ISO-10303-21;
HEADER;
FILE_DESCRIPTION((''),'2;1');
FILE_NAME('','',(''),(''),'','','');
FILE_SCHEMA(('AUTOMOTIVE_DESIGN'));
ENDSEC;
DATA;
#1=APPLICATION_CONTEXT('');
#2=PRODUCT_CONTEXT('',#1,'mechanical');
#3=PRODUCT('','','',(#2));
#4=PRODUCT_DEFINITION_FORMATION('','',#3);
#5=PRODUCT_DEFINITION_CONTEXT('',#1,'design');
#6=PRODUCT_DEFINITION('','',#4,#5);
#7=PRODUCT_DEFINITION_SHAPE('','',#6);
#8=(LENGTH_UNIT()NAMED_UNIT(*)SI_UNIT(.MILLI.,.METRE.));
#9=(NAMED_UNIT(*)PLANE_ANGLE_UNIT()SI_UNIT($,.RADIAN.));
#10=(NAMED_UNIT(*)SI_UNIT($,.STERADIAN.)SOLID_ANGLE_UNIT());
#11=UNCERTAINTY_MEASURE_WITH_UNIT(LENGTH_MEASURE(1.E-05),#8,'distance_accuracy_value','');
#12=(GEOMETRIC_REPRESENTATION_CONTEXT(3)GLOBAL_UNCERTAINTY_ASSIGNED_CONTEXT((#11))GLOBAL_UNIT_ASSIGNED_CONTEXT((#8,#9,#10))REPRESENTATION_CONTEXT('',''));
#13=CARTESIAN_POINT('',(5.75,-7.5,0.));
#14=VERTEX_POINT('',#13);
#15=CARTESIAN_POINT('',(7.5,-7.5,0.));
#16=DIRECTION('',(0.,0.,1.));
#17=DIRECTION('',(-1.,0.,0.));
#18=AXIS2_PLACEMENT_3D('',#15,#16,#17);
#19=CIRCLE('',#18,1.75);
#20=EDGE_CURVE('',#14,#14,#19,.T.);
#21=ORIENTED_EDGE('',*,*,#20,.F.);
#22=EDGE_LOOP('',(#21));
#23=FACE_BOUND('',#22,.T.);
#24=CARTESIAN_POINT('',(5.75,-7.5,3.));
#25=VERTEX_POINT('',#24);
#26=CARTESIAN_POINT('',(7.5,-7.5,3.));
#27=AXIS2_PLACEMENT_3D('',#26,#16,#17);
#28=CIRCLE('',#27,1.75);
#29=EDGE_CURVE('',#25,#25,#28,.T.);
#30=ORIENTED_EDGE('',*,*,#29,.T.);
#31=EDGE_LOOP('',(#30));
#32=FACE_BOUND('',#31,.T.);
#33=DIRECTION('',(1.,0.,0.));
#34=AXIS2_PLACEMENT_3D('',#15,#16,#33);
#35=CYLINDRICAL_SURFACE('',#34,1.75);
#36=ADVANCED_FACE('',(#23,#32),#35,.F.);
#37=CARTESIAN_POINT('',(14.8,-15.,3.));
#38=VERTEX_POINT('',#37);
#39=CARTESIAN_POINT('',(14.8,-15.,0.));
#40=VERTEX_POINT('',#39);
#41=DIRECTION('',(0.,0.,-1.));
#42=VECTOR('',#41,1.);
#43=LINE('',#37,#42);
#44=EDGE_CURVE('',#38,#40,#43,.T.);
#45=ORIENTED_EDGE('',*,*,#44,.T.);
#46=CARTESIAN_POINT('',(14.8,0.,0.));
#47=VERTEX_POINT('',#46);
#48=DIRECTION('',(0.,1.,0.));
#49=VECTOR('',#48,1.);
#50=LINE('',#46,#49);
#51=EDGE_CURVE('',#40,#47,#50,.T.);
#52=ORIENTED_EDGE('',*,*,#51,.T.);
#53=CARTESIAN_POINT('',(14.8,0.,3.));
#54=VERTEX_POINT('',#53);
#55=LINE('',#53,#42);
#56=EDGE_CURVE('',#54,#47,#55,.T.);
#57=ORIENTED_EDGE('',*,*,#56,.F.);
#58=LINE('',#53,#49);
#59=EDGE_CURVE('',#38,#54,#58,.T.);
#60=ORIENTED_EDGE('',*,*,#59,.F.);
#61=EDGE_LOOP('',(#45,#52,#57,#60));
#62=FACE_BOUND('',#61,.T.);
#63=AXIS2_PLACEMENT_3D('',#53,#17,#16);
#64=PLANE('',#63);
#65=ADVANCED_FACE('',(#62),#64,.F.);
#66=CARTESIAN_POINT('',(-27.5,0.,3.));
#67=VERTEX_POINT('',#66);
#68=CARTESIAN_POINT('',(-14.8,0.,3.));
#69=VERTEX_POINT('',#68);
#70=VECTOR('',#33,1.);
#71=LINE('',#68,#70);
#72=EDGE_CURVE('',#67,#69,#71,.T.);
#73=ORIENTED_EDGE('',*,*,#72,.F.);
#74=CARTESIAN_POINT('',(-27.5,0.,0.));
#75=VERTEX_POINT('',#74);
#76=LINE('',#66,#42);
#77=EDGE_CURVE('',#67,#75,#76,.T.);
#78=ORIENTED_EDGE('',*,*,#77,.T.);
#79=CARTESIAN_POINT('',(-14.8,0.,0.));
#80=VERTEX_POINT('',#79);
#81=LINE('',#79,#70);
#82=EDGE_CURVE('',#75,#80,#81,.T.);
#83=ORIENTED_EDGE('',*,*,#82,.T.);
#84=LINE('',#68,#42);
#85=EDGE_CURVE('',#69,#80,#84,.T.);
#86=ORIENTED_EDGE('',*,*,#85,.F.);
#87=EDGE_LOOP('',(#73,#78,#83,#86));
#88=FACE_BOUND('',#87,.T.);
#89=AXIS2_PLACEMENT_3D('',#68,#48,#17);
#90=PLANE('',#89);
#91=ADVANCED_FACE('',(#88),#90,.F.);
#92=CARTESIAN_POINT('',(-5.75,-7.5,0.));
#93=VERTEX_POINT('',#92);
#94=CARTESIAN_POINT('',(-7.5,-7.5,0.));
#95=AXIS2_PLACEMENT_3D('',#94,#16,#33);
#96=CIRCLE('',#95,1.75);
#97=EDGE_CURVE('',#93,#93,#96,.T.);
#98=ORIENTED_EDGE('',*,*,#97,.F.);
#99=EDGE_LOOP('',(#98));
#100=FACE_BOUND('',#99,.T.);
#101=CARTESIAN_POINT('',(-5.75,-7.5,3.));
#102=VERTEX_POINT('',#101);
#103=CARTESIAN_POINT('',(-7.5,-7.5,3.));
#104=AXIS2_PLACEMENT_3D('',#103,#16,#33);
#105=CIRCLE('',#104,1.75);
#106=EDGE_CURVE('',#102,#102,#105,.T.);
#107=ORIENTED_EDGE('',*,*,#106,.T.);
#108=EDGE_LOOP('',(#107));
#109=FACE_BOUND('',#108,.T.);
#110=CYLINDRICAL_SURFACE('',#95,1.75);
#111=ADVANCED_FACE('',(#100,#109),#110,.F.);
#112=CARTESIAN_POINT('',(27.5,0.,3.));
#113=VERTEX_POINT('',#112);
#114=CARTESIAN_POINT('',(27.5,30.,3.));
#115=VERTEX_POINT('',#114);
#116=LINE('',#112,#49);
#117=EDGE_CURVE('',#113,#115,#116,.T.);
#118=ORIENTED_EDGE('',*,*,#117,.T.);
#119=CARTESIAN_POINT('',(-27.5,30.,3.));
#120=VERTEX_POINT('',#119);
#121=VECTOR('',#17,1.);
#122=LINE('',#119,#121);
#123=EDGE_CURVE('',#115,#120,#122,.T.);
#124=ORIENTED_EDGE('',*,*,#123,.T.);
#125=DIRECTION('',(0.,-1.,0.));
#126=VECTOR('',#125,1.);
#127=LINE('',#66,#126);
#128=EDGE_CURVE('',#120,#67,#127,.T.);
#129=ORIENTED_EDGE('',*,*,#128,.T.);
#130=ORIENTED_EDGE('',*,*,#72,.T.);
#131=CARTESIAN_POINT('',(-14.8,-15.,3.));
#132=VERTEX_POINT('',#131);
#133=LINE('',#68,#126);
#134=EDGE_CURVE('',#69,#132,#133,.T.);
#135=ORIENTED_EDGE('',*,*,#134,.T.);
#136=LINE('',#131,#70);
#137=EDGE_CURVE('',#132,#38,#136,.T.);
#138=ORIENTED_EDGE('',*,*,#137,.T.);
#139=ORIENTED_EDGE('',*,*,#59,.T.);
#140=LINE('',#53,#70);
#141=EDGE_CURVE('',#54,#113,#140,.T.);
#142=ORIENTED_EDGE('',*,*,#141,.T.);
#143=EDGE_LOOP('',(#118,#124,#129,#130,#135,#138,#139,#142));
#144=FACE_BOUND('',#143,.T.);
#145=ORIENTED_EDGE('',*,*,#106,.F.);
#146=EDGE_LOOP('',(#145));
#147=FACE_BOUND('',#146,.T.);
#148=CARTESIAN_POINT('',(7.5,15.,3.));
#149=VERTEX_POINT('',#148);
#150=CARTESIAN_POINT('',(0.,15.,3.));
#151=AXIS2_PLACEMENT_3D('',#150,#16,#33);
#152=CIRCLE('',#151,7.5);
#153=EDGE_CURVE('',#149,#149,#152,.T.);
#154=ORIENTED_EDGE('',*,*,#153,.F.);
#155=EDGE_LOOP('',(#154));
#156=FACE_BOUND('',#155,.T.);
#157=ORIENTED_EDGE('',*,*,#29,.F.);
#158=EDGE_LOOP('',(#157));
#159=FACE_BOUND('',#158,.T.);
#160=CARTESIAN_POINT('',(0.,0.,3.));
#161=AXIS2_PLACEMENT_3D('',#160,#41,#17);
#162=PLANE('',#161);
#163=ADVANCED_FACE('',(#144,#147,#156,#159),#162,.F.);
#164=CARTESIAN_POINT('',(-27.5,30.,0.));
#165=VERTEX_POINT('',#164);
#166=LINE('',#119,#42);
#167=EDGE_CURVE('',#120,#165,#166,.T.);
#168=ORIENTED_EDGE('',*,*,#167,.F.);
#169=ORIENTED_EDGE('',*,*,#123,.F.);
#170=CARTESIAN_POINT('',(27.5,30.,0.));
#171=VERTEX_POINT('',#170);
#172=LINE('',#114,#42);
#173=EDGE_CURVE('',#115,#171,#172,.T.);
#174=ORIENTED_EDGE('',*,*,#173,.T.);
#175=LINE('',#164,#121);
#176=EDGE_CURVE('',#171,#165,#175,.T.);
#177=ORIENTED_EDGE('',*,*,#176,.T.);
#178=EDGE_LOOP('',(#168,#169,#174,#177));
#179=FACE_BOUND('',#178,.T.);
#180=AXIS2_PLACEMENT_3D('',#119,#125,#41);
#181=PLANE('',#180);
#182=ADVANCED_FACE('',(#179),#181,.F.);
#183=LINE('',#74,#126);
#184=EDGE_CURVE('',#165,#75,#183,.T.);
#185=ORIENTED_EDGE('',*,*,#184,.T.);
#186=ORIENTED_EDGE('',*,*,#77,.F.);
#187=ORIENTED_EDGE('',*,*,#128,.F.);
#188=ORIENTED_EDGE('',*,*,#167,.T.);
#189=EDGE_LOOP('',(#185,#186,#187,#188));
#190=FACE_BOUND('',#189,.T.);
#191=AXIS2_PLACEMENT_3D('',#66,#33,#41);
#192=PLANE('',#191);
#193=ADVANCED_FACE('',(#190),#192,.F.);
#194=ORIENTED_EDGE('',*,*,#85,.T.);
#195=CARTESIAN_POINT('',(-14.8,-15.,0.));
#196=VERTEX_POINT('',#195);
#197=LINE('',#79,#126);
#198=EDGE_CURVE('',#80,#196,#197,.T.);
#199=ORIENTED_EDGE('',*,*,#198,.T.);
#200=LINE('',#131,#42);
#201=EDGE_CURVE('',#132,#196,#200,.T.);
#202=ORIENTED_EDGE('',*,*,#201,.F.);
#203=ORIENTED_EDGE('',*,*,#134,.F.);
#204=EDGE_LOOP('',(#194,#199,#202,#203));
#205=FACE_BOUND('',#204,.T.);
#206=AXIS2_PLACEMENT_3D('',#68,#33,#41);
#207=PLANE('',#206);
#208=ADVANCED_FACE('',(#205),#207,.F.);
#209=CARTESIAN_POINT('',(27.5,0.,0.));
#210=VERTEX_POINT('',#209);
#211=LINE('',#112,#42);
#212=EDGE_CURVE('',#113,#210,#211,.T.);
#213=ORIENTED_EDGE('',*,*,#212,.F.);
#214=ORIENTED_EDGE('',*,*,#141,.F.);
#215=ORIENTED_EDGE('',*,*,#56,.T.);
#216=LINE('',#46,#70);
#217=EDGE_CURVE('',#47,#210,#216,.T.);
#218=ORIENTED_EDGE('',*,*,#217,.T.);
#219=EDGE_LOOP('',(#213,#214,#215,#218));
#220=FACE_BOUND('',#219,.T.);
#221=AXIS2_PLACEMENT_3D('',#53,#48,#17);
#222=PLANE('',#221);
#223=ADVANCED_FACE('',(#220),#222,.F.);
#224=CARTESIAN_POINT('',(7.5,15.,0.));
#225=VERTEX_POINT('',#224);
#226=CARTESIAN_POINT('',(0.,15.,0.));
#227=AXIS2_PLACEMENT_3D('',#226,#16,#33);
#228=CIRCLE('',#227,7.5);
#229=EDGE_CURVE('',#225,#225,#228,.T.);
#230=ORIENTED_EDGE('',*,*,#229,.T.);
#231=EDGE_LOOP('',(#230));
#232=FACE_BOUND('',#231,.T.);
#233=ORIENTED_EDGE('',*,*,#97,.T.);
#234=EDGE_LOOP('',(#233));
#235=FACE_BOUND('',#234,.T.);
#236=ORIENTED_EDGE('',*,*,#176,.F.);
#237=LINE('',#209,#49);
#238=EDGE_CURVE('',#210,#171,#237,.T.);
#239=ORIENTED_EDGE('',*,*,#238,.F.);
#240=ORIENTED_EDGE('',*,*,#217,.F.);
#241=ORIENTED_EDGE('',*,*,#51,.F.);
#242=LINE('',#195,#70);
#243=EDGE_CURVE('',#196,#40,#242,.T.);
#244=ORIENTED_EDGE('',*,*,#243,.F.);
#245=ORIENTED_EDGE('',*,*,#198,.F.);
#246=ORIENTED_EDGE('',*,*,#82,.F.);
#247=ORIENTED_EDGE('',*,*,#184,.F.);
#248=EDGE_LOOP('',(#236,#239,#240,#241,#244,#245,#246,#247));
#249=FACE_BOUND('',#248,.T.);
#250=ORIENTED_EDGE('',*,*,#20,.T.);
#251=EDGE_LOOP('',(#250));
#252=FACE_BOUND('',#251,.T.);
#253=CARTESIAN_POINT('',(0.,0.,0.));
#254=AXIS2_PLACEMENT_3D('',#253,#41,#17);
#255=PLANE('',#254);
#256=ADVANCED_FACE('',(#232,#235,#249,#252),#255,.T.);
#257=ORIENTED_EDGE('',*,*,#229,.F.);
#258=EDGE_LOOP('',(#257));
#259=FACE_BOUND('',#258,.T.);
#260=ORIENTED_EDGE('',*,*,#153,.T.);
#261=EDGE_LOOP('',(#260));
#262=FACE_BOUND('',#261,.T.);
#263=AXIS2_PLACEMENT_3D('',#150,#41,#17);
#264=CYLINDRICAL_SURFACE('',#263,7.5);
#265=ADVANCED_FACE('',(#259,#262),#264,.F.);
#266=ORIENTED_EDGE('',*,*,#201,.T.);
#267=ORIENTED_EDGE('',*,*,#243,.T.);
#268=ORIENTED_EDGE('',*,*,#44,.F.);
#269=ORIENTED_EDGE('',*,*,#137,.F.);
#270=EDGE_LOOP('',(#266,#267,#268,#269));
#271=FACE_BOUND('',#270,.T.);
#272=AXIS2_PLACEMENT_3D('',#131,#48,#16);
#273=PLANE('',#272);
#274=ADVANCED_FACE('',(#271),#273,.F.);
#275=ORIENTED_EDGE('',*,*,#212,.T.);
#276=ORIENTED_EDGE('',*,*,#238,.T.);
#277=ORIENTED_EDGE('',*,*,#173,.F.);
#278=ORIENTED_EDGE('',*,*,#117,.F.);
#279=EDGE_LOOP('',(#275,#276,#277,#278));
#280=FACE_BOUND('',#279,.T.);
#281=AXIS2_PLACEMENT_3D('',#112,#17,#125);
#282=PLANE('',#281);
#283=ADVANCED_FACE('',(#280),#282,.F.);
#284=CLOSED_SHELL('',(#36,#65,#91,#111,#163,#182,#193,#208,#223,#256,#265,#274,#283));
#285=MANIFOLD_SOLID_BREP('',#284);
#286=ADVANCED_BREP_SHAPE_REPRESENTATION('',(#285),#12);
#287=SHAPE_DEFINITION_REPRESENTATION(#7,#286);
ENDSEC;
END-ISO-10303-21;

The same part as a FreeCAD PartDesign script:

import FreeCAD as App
import Part
import Sketcher


def add_polygon(sketch, points):
    """Adds a closed chain of lines whose ends are joined by coincident constraints."""
    first, n = sketch.GeometryCount, len(points)
    for a, b in zip(points, points[1:] + points[:1]):
        sketch.addGeometry(Part.LineSegment(App.Vector(*a, 0), App.Vector(*b, 0)), False)
    for i in range(n):
        sketch.addConstraint(Sketcher.Constraint("Coincident", first + i, 2, first + (i + 1) % n, 1))

doc = App.newDocument("Part")
body = doc.addObject("PartDesign::Body", "Body")

sketch1 = body.newObject("Sketcher::SketchObject", "Sketch")
sketch1.AttachmentSupport = (doc.getObject("XY_Plane"), [""])
sketch1.MapMode = "FlatFace"
add_polygon(sketch1, [(-14.8, -15), (14.8, -15), (14.8, 0), (27.5, 0), (27.5, 30), (-27.5, 30), (-27.5, 0), (-14.8, 0)])
sketch1.addGeometry(Part.Circle(App.Vector(0, 15, 0), App.Vector(0, 0, 1), 7.5), False)
sketch1.addConstraint(Sketcher.Constraint("Horizontal", 0))
sketch1.addConstraint(Sketcher.Constraint("Vertical", 1))
sketch1.addConstraint(Sketcher.Constraint("Horizontal", 2))
sketch1.addConstraint(Sketcher.Constraint("Vertical", 3))
sketch1.addConstraint(Sketcher.Constraint("Horizontal", 4))
sketch1.addConstraint(Sketcher.Constraint("Vertical", 5))
sketch1.addConstraint(Sketcher.Constraint("Horizontal", 6))
sketch1.addConstraint(Sketcher.Constraint("Vertical", 7))
sketch1.addConstraint(Sketcher.Constraint("Symmetric", 2, 2, 5, 2, -1, 1))
sketch1.addConstraint(Sketcher.Constraint("Symmetric", 1, 2, 6, 2, -2))
sketch1.addConstraint(Sketcher.Constraint("PointOnObject", 8, 3, -2))
sketch1.addConstraint(Sketcher.Constraint("Diameter", 8, 15.0))
sketch1.addConstraint(Sketcher.Constraint("DistanceX", 4, 2, 4, 1, 55.0))
sketch1.addConstraint(Sketcher.Constraint("DistanceY", 1, 1, 1, 2, 15.0))
sketch1.addConstraint(Sketcher.Constraint("DistanceY", 3, 1, 3, 2, 30.0))
sketch1.addConstraint(Sketcher.Constraint("DistanceX", 0, 1, 0, 2, 29.6))
sketch1.addConstraint(Sketcher.Constraint("DistanceY", -1, 1, 8, 3, 15.0))
pad1 = body.newObject("PartDesign::Pad", "Pad")
pad1.Profile = sketch1
pad1.Length = 3

sketch2 = body.newObject("Sketcher::SketchObject", "Sketch001")
sketch2.AttachmentSupport = (doc.getObject("XY_Plane"), [""])
sketch2.MapMode = "FlatFace"
sketch2.AttachmentOffset = App.Placement(App.Vector(0, 0, 3), App.Rotation())
sketch2.addGeometry(Part.Circle(App.Vector(-7.5, -7.5, 0), App.Vector(0, 0, 1), 1.75), False)
sketch2.addGeometry(Part.Circle(App.Vector(7.5, -7.5, 0), App.Vector(0, 0, 1), 1.75), False)
sketch2.addConstraint(Sketcher.Constraint("Equal", 0, 1))
sketch2.addConstraint(Sketcher.Constraint("Symmetric", 0, 3, 1, 3, -2))
sketch2.addConstraint(Sketcher.Constraint("Diameter", 0, 3.5))
sketch2.addConstraint(Sketcher.Constraint("DistanceX", 0, 3, 1, 3, 15.0))
sketch2.addConstraint(Sketcher.Constraint("DistanceY", 0, 3, -1, 1, 7.5))
pocket1 = body.newObject("PartDesign::Pocket", "Pocket")
pocket1.Profile = sketch2
pocket1.Length = 3

doc.recompute()
